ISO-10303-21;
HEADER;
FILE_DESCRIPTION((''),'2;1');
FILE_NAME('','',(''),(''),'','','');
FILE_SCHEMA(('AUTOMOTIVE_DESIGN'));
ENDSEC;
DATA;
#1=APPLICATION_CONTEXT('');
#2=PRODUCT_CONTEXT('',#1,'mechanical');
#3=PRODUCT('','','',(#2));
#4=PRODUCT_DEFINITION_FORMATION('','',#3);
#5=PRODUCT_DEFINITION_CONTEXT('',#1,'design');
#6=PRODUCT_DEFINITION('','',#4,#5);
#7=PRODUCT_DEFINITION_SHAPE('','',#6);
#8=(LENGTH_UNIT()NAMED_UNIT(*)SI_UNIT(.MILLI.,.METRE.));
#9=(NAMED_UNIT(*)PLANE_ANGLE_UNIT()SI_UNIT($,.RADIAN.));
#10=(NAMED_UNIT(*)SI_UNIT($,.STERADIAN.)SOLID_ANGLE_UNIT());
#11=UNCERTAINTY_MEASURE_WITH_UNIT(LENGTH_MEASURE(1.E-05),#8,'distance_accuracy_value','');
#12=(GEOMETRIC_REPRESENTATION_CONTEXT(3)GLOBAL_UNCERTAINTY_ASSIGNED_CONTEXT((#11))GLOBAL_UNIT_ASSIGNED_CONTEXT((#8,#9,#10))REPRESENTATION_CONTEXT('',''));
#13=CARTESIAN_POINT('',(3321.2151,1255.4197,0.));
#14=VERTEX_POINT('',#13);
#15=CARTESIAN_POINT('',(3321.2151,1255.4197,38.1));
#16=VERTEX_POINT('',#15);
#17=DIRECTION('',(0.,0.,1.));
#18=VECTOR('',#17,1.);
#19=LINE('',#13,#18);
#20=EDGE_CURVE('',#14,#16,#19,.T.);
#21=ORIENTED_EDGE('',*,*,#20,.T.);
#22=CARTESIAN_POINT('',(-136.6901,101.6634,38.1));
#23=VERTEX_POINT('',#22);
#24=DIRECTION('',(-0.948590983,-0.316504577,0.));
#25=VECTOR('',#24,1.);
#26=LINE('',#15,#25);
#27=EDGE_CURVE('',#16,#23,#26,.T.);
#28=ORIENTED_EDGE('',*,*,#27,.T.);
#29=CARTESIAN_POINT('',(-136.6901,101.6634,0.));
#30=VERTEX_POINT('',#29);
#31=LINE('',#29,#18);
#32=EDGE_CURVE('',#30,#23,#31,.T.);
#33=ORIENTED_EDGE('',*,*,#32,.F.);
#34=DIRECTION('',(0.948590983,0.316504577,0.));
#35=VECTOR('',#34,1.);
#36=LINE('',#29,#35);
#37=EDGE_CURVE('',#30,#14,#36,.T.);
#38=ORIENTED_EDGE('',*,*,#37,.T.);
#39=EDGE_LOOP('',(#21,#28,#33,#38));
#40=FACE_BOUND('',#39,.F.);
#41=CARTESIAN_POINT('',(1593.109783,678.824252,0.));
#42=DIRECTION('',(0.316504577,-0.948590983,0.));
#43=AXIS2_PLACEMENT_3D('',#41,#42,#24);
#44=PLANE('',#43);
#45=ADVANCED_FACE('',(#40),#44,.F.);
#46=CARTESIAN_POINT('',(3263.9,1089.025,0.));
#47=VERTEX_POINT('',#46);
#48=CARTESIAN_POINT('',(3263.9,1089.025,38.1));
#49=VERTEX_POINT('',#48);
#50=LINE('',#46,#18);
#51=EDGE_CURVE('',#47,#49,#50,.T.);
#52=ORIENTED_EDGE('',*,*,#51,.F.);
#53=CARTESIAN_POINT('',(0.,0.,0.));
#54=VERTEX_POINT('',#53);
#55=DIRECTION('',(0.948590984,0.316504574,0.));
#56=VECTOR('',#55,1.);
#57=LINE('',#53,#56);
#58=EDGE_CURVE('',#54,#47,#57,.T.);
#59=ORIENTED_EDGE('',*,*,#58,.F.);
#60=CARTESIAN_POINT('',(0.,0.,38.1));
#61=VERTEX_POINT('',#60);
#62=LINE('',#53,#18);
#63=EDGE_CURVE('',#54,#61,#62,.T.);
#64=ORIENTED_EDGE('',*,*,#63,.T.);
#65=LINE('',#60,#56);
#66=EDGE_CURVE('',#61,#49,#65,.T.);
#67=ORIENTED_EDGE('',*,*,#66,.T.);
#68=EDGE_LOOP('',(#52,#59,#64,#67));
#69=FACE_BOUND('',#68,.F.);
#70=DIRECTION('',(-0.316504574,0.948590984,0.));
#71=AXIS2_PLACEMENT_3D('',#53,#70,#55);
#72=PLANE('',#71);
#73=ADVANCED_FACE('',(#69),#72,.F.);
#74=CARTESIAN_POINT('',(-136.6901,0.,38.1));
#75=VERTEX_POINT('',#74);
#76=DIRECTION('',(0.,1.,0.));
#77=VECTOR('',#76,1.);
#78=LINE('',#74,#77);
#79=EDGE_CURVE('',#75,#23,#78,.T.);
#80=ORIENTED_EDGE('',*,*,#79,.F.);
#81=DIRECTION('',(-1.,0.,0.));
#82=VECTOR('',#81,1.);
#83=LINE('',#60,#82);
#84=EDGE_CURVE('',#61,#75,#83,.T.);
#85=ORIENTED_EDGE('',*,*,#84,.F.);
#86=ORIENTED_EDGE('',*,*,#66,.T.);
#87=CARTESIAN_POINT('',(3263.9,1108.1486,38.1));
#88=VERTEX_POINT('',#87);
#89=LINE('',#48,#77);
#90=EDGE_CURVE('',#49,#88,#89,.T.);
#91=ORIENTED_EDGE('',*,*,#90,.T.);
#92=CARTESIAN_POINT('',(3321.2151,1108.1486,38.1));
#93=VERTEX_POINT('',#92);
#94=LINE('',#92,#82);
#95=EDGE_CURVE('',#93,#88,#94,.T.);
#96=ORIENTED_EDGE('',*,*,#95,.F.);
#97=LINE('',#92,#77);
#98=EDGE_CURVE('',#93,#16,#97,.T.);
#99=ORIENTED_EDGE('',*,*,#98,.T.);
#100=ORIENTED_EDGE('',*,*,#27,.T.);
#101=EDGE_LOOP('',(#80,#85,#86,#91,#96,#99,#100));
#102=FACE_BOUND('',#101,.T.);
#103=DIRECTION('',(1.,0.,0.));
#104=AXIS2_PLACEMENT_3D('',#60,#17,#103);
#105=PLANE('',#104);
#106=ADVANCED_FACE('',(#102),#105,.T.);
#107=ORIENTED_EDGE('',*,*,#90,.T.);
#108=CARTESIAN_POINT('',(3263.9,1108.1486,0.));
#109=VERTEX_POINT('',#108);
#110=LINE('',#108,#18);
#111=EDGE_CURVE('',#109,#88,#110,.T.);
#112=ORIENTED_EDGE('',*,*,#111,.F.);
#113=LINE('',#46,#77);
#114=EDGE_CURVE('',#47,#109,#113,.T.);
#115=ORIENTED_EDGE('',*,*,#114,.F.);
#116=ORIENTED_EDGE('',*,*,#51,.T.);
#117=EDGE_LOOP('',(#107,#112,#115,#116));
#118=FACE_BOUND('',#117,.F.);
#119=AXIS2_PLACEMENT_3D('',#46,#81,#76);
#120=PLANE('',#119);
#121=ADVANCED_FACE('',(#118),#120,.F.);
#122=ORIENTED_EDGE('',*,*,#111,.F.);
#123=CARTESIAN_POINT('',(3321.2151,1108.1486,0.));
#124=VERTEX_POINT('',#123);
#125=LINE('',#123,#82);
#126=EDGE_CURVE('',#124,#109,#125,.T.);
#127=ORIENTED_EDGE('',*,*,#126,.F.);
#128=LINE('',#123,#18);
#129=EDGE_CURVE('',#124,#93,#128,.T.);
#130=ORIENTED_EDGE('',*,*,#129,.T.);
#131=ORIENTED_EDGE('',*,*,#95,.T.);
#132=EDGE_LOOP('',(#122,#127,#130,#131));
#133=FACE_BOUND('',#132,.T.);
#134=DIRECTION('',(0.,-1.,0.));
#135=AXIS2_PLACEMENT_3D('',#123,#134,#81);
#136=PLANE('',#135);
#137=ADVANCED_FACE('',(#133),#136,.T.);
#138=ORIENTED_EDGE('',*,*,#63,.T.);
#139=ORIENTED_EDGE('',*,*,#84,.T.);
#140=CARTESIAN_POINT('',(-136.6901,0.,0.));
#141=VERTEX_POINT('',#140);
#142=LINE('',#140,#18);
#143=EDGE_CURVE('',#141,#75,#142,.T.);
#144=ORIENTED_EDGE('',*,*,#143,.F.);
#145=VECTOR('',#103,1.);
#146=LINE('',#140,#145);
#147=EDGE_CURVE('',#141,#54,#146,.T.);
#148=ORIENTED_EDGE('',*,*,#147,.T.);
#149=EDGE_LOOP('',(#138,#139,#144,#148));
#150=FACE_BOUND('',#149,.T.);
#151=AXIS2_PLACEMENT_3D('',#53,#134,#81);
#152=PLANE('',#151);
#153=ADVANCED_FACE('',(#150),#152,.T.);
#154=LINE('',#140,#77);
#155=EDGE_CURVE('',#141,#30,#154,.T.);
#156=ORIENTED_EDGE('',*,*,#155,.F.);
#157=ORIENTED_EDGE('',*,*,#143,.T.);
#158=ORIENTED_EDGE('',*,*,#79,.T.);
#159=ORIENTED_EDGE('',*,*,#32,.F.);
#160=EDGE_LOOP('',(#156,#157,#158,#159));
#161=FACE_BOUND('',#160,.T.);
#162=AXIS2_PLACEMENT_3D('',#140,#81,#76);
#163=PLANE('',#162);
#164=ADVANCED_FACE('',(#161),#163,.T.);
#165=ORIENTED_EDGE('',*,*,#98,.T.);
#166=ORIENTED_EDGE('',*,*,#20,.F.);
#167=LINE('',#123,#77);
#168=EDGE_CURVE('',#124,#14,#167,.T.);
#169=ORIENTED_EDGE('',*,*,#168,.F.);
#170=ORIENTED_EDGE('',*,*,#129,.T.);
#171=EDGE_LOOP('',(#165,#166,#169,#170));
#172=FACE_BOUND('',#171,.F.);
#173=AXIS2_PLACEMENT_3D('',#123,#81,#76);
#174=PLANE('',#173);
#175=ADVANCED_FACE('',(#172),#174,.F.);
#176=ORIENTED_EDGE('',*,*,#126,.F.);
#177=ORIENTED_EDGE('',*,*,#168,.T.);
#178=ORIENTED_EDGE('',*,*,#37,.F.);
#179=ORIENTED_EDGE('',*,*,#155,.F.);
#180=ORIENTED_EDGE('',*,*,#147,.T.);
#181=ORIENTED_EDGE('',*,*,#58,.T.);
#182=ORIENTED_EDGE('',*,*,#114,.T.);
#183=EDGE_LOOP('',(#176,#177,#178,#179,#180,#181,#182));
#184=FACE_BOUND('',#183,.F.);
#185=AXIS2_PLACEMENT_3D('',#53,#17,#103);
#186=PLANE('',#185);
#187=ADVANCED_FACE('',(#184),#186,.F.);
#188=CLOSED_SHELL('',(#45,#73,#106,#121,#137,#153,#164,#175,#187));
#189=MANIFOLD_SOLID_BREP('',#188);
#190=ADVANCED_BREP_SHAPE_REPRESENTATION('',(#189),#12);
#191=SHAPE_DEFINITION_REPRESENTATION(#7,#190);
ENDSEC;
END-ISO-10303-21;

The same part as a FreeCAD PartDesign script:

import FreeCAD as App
import Part
import Sketcher

V = App.Vector
Q = App.Units.Quantity

doc = App.newDocument("Part")
params = doc.addObject("Spreadsheet::Sheet", "Params")
for row, (alias, value) in enumerate([
    ("pad1_length", "1.5 in"),
], start=1):
    params.set(f"A{row}", alias)
    params.set(f"B{row}", "=" + value)
    params.setAlias(f"B{row}", alias)

body = doc.addObject("PartDesign::Body", "Body")

sketch1 = doc.addObject("Sketcher::SketchObject", "Sketch")
body.addObject(sketch1)
sketch1.AttachmentSupport = (doc.XY_Plane, [""])
sketch1.MapMode = "FlatFace"
sketch1.addGeometry(Part.LineSegment(V(0, 0, 0), V(3264, 1089, 0)), False)
sketch1.addGeometry(Part.LineSegment(V(3264, 1089, 0), V(3264, 1108, 0)), False)
sketch1.addGeometry(Part.LineSegment(V(3264, 1108, 0), V(3321, 1108, 0)), False)
sketch1.addGeometry(Part.LineSegment(V(3321, 1108, 0), V(3321, 1255, 0)), False)
sketch1.addGeometry(Part.LineSegment(V(3321, 1255, 0), V(-137, 102, 0)), False)
sketch1.addGeometry(Part.LineSegment(V(-137, 102, 0), V(-137, 0, 0)), False)
sketch1.addGeometry(Part.LineSegment(V(-137, 0, 0), V(0, 0, 0)), False)
sketch1.addConstraint(Sketcher.Constraint("Coincident", 0, 2, 1, 1))
sketch1.addConstraint(Sketcher.Constraint("Coincident", 1, 2, 2, 1))
sketch1.addConstraint(Sketcher.Constraint("Coincident", 2, 2, 3, 1))
sketch1.addConstraint(Sketcher.Constraint("Coincident", 3, 2, 4, 1))
sketch1.addConstraint(Sketcher.Constraint("Coincident", 4, 2, 5, 1))
sketch1.addConstraint(Sketcher.Constraint("Coincident", 5, 2, 6, 1))
sketch1.addConstraint(Sketcher.Constraint("Coincident", 6, 2, 0, 1))
sketch1.addConstraint(Sketcher.Constraint("Vertical", 1))
sketch1.addConstraint(Sketcher.Constraint("Horizontal", 2))
sketch1.addConstraint(Sketcher.Constraint("Vertical", 3))
sketch1.addConstraint(Sketcher.Constraint("Vertical", 5))
sketch1.addConstraint(Sketcher.Constraint("Horizontal", 6))
sketch1.addConstraint(Sketcher.Constraint("Coincident", 6, 2, -1, 1))
sketch1.addConstraint(Sketcher.Constraint("Parallel", 0, 4))
sketch1.addConstraint(Sketcher.Constraint("DistanceX", 2, 1, 2, 2, Q("2.2565 in")))
sketch1.addConstraint(Sketcher.Constraint("DistanceY", -1, 1, 0, 2, Q("42.875 in")))
sketch1.addConstraint(Sketcher.Constraint("DistanceX", -1, 1, 0, 2, Q("128.5 in")))
sketch1.addConstraint(Sketcher.Constraint("DistanceX", 6, 1, 6, 2, Q("5.3815 in")))
sketch1.addConstraint(Sketcher.Constraint("DistanceY", 1, 1, 1, 2, Q("0.7529 in")))
sketch1.addConstraint(Sketcher.Constraint("DistanceY", 5, 2, 5, 1, Q("4.0025 in")))
pad1 = doc.addObject("PartDesign::Pad", "Pad")
body.addObject(pad1)
pad1.Profile = sketch1
pad1.setExpression("Length", "Params.pad1_length")

doc.recompute()
